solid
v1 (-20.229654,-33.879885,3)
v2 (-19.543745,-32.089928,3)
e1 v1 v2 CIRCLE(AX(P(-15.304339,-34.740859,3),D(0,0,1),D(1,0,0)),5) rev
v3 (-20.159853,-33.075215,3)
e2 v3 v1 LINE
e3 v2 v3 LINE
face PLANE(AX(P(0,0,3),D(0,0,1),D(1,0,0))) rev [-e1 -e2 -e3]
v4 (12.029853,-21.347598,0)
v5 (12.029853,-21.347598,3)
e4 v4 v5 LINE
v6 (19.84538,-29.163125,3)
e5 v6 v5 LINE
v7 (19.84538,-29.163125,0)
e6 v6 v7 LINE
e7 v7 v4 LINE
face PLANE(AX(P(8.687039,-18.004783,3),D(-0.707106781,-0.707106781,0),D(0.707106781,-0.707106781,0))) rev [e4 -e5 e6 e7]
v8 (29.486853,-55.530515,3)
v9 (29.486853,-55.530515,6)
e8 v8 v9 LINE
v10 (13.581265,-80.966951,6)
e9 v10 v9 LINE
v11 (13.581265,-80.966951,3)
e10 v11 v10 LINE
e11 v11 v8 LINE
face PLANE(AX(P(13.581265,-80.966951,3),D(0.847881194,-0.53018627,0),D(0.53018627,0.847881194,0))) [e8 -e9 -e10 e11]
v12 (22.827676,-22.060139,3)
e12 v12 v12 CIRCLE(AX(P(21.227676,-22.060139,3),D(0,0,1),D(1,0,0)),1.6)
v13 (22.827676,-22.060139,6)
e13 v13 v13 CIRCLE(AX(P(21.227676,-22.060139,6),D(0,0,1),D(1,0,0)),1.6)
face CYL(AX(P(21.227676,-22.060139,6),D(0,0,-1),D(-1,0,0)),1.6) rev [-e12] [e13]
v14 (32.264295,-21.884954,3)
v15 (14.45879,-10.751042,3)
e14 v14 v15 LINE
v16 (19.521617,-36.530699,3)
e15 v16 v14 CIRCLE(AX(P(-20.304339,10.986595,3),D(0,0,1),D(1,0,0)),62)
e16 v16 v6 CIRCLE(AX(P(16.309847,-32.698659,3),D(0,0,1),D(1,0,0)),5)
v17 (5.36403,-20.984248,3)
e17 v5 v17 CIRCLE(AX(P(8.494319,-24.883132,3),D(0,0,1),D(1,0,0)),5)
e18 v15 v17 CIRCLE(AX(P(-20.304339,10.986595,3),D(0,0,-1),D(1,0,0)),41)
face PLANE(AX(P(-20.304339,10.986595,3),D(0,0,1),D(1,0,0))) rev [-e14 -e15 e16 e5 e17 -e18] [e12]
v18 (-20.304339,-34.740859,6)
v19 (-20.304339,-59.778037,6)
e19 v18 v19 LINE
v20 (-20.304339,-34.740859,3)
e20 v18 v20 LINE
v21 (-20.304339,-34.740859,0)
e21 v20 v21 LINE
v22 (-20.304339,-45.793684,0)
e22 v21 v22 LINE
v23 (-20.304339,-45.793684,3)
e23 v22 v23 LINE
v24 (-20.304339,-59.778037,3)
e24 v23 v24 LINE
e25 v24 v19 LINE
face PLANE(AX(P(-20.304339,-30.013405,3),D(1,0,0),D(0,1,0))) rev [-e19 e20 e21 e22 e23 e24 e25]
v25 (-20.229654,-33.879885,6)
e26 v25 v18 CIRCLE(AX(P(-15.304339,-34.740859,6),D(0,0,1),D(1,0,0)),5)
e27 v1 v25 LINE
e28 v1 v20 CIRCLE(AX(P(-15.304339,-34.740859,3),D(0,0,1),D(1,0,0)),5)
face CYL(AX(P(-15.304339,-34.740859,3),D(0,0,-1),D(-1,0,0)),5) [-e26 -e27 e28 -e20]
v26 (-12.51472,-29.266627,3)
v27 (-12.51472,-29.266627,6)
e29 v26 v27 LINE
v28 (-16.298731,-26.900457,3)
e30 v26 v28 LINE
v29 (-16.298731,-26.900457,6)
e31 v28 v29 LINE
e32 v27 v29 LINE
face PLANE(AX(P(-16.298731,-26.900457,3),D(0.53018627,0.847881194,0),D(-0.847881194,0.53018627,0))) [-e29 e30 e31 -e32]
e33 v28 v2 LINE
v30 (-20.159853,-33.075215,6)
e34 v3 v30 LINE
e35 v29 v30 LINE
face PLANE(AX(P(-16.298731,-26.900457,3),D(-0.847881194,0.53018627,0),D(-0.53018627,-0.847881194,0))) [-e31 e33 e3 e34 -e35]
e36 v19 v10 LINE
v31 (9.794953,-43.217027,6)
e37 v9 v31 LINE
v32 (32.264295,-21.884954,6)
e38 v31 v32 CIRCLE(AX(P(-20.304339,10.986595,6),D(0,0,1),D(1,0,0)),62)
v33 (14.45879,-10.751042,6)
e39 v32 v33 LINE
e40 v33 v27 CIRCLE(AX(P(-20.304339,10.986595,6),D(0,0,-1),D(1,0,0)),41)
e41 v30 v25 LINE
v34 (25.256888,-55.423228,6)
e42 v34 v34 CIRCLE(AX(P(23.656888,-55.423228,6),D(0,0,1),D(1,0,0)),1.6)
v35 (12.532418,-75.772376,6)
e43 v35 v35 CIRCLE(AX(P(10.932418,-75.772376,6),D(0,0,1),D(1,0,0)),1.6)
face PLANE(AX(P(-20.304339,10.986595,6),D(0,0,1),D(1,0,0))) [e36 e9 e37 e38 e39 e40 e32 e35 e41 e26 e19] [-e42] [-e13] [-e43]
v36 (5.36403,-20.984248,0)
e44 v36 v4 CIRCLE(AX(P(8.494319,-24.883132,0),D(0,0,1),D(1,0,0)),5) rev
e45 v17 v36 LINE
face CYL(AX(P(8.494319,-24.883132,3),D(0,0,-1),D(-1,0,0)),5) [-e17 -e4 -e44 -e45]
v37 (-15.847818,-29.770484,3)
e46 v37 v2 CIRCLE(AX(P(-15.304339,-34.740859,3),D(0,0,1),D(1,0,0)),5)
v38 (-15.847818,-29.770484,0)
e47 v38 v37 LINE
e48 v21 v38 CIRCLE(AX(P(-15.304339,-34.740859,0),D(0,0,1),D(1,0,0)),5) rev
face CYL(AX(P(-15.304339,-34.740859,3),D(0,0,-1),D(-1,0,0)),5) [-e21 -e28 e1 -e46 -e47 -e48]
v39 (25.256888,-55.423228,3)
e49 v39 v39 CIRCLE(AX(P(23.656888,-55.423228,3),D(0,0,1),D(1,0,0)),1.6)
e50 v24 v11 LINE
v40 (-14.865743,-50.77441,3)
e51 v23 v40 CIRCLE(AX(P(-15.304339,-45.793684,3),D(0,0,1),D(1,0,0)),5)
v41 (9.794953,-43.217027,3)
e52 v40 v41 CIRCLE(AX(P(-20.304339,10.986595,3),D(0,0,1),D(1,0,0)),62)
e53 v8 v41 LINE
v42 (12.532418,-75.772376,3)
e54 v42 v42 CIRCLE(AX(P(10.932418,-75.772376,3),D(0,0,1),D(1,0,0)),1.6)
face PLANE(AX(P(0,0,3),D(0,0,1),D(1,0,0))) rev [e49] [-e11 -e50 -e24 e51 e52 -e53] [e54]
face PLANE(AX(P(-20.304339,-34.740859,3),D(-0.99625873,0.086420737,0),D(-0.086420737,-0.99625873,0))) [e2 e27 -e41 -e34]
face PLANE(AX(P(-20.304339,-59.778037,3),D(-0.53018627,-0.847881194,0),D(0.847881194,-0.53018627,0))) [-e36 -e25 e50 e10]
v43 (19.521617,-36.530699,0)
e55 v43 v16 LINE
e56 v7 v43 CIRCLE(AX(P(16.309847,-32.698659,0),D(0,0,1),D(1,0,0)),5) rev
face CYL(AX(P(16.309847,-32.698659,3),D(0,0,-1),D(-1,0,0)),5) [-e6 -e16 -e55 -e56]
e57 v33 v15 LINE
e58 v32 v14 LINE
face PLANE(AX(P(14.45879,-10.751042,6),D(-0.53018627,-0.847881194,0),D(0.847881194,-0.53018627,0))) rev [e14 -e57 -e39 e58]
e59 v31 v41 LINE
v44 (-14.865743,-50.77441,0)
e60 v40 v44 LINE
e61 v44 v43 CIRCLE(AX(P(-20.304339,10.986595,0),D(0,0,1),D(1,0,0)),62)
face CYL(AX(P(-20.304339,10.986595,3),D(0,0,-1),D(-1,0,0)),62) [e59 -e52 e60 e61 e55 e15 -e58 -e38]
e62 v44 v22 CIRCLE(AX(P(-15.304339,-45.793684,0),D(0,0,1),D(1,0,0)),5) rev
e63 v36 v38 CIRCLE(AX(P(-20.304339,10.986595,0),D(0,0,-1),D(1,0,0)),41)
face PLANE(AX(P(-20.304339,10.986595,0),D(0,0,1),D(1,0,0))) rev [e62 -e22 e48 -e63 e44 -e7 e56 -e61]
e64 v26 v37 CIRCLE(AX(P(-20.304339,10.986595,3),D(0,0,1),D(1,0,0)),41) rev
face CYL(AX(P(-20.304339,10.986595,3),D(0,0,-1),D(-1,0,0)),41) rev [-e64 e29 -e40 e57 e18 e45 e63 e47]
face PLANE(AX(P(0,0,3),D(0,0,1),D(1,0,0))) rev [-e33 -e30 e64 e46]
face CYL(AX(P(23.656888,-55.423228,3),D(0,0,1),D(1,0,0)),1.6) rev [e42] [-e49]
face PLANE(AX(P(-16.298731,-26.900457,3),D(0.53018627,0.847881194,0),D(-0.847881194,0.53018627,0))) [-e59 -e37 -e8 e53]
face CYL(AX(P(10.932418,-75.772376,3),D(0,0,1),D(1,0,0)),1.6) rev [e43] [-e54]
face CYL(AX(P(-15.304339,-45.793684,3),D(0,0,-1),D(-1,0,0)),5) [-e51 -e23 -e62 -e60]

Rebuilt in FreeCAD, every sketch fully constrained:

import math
import FreeCAD as App
import Part
import Sketcher
Q = App.Units.Quantity


def edges_at(feature, points):
    """Names of the edges that pass closest to the given points."""
    edges = feature.Shape.Edges
    near = lambda p: min(range(len(edges)), key=lambda i: edges[i].distToShape(Part.Vertex(*p))[0])
    return sorted({f"Edge{near(p) + 1}" for p in points})

doc = App.newDocument("Part")
body = doc.addObject("PartDesign::Body", "Body")

sketch1 = body.newObject("Sketcher::SketchObject", "Sketch")
sketch1.AttachmentSupport = (doc.getObject("XY_Plane"), [""])
sketch1.MapMode = "FlatFace"
sketch1.addGeometry([
    Part.LineSegment(App.Vector(-20, -30, 0), App.Vector(-20, -51, 0)),
    Part.ArcOfCircle(Part.Circle(App.Vector(-20, 11, 0), App.Vector(0, 0, 1), 62), math.radians(-90), math.radians(-45)),
    Part.LineSegment(App.Vector(24, -33, 0), App.Vector(9, -18, 0)),
    Part.ArcOfCircle(Part.Circle(App.Vector(-20, 11, 0), App.Vector(0, 0, 1), 41), math.radians(-90), math.radians(-45)),
], False)
sketch1.addConstraint([
    Sketcher.Constraint("Coincident", 0, 2, 1, 1),
    Sketcher.Constraint("Coincident", 1, 2, 2, 1),
    Sketcher.Constraint("Coincident", 2, 2, 3, 2),
    Sketcher.Constraint("Coincident", 3, 1, 0, 1),
    Sketcher.Constraint("Vertical", 0),
    Sketcher.Constraint("Coincident", 3, 3, 1, 3),
    Sketcher.Constraint("Vertical", 3, 3, 0, 2),
    Sketcher.Constraint("Radius", 1, 62.0),
    Sketcher.Constraint("Radius", 3, 41.0),
    Sketcher.Constraint("Angle", 2, Q("135 deg")),
    Sketcher.Constraint("DistanceX", 1, 3, -1, 1, 20.304339),
    Sketcher.Constraint("DistanceX", -1, 1, 1, 2, 23.536281),
    Sketcher.Constraint("DistanceY", -1, 1, 1, 3, 10.986595),
])
pad1 = body.newObject("PartDesign::Pad", "Pad")
pad1.Profile = sketch1
pad1.Length = 3
doc.recompute()

fillet = body.newObject("PartDesign::Fillet", "Fillet")
fillet.Base = (pad1, edges_at(pad1, [
    (8.687, -18.005, 1.5),
    (23.536, -32.854, 1.5),
    (-20.304, -51.013, 1.5),
    (-20.304, -30.013, 1.5),
]))
fillet.Radius = 5

sketch2 = body.newObject("Sketcher::SketchObject", "Sketch001")
sketch2.AttachmentSupport = (doc.getObject("XY_Plane"), [""])
sketch2.MapMode = "FlatFace"
sketch2.AttachmentOffset = App.Placement(App.Vector(0, 0, 3), App.Rotation())
sketch2.addGeometry([
    Part.LineSegment(App.Vector(-20.3, -30, 0), App.Vector(-20.3, -51, 0)),
    Part.ArcOfCircle(Part.Circle(App.Vector(-20.3, 11, 0), App.Vector(0, 0, 1), 62), math.radians(-90), math.radians(-32)),
    Part.LineSegment(App.Vector(32.3, -21.9, 0), App.Vector(14.5, -10.8, 0)),
    Part.ArcOfCircle(Part.Circle(App.Vector(-20.3, 11, 0), App.Vector(0, 0, 1), 41), math.radians(-90), math.radians(-32)),
    Part.Circle(App.Vector(21.2, -22.1, 0), App.Vector(0, 0, 1), 1.6),
], False)
sketch2.addConstraint([
    Sketcher.Constraint("Coincident", 0, 2, 1, 1),
    Sketcher.Constraint("Coincident", 1, 2, 2, 1),
    Sketcher.Constraint("Coincident", 2, 2, 3, 2),
    Sketcher.Constraint("Coincident", 3, 1, 0, 1),
    Sketcher.Constraint("Vertical", 0),
    Sketcher.Constraint("Coincident", 3, 3, 1, 3),
    Sketcher.Constraint("Vertical", 3, 3, 0, 2),
    Sketcher.Constraint("Radius", 1, 62.0),
    Sketcher.Constraint("Radius", 3, 41.0),
    Sketcher.Constraint("Diameter", 4, 3.2),
    Sketcher.Constraint("DistanceX", 1, 3, -1, 1, 20.304339),
    Sketcher.Constraint("DistanceY", 4, 3, -1, 1, 22.060139),
    Sketcher.Constraint("DistanceX", -1, 1, 2, 2, 14.45879),
    Sketcher.Constraint("DistanceX", 4, 3, 1, 2, 11.036619),
    Sketcher.Constraint("DistanceY", 0, 2, 1, 2, 29.128451),
    Sketcher.Constraint("DistanceY", -1, 1, 1, 3, 10.986595),
])
pad2 = body.newObject("PartDesign::Pad", "Pad001")
pad2.Profile = sketch2
pad2.Length = 3
doc.recompute()

fillet2 = body.newObject("PartDesign::Fillet", "Fillet001")
fillet2.Base = (pad2, edges_at(pad2, [(-20.304, -30.013, 4.5), (-20.304, -51.013, 4.5)]))
fillet2.Radius = 5

sketch3 = body.newObject("Sketcher::SketchObject", "Sketch002")
sketch3.AttachmentSupport = (doc.getObject("XY_Plane"), [""])
sketch3.MapMode = "FlatFace"
sketch3.AttachmentOffset = App.Placement(App.Vector(0, 0, 6), App.Rotation())
sketch3.addGeometry([
    Part.LineSegment(App.Vector(29.5, -55.5, 0), App.Vector(-16.3, -26.9, 0)),
    Part.LineSegment(App.Vector(-16.3, -26.9, 0), App.Vector(-20.2, -33.1, 0)),
    Part.LineSegment(App.Vector(-20.2, -33.1, 0), App.Vector(-20.3, -34.7, 0)),
    Part.LineSegment(App.Vector(-20.3, -34.7, 0), App.Vector(-20.3, -59.8, 0)),
    Part.LineSegment(App.Vector(-20.3, -59.8, 0), App.Vector(13.6, -81, 0)),
    Part.LineSegment(App.Vector(13.6, -81, 0), App.Vector(29.5, -55.5, 0)),
    Part.Circle(App.Vector(10.9, -75.8, 0), App.Vector(0, 0, 1), 1.6),
    Part.Circle(App.Vector(23.7, -55.4, 0), App.Vector(0, 0, 1), 1.6),
    Part.Circle(App.Vector(-13.6, -32.1, 0), App.Vector(0, 0, 1), 1.6),
], False)
sketch3.addConstraint([
    Sketcher.Constraint("Coincident", 0, 2, 1, 1),
    Sketcher.Constraint("Coincident", 1, 2, 2, 1),
    Sketcher.Constraint("Coincident", 2, 2, 3, 1),
    Sketcher.Constraint("Coincident", 3, 2, 4, 1),
    Sketcher.Constraint("Coincident", 4, 2, 5, 1),
    Sketcher.Constraint("Coincident", 5, 2, 0, 1),
    Sketcher.Constraint("Vertical", 3),
    Sketcher.Constraint("Equal", 6, 7),
    Sketcher.Constraint("Equal", 7, 8),
    Sketcher.Constraint("Perpendicular", 0, 1),
    Sketcher.Constraint("Perpendicular", 1, 4),
    Sketcher.Constraint("Perpendicular", 4, 5),
    Sketcher.Constraint("Diameter", 6, 3.2),
    Sketcher.Constraint("Distance", 0, 54.0),
    Sketcher.Constraint("Distance", 5, 30.0),
    Sketcher.Constraint("Distance", 2, 1.671899),
    Sketcher.Constraint("Distance", 4, 39.965038),
    Sketcher.Constraint("DistanceY", 3, 2, 3, 1, 25.037178),
    Sketcher.Constraint("DistanceX", -1, 1, 7, 3, 23.656888),
    Sketcher.Constraint("DistanceY", 8, 3, -1, 1, 32.095032),
    Sketcher.Constraint("DistanceX", 0, 2, -1, 1, 16.298731),
    Sketcher.Constraint("DistanceX", 2, 2, -1, 1, 20.304339),
    Sketcher.Constraint("DistanceY", 2, 2, -1, 1, 34.740859),
    Sketcher.Constraint("DistanceX", 6, 3, 7, 3, 12.72447),
    Sketcher.Constraint("DistanceY", 6, 3, 7, 3, 20.349149),
    Sketcher.Constraint("DistanceY", 7, 3, 0, 2, 28.522771),
    Sketcher.Constraint("DistanceX", 1, 2, 8, 3, 6.509968),
])
pad3 = body.newObject("PartDesign::Pad", "Pad002")
pad3.Profile = sketch3
pad3.Length = 3
pad3.Reversed = True

doc.recompute()
